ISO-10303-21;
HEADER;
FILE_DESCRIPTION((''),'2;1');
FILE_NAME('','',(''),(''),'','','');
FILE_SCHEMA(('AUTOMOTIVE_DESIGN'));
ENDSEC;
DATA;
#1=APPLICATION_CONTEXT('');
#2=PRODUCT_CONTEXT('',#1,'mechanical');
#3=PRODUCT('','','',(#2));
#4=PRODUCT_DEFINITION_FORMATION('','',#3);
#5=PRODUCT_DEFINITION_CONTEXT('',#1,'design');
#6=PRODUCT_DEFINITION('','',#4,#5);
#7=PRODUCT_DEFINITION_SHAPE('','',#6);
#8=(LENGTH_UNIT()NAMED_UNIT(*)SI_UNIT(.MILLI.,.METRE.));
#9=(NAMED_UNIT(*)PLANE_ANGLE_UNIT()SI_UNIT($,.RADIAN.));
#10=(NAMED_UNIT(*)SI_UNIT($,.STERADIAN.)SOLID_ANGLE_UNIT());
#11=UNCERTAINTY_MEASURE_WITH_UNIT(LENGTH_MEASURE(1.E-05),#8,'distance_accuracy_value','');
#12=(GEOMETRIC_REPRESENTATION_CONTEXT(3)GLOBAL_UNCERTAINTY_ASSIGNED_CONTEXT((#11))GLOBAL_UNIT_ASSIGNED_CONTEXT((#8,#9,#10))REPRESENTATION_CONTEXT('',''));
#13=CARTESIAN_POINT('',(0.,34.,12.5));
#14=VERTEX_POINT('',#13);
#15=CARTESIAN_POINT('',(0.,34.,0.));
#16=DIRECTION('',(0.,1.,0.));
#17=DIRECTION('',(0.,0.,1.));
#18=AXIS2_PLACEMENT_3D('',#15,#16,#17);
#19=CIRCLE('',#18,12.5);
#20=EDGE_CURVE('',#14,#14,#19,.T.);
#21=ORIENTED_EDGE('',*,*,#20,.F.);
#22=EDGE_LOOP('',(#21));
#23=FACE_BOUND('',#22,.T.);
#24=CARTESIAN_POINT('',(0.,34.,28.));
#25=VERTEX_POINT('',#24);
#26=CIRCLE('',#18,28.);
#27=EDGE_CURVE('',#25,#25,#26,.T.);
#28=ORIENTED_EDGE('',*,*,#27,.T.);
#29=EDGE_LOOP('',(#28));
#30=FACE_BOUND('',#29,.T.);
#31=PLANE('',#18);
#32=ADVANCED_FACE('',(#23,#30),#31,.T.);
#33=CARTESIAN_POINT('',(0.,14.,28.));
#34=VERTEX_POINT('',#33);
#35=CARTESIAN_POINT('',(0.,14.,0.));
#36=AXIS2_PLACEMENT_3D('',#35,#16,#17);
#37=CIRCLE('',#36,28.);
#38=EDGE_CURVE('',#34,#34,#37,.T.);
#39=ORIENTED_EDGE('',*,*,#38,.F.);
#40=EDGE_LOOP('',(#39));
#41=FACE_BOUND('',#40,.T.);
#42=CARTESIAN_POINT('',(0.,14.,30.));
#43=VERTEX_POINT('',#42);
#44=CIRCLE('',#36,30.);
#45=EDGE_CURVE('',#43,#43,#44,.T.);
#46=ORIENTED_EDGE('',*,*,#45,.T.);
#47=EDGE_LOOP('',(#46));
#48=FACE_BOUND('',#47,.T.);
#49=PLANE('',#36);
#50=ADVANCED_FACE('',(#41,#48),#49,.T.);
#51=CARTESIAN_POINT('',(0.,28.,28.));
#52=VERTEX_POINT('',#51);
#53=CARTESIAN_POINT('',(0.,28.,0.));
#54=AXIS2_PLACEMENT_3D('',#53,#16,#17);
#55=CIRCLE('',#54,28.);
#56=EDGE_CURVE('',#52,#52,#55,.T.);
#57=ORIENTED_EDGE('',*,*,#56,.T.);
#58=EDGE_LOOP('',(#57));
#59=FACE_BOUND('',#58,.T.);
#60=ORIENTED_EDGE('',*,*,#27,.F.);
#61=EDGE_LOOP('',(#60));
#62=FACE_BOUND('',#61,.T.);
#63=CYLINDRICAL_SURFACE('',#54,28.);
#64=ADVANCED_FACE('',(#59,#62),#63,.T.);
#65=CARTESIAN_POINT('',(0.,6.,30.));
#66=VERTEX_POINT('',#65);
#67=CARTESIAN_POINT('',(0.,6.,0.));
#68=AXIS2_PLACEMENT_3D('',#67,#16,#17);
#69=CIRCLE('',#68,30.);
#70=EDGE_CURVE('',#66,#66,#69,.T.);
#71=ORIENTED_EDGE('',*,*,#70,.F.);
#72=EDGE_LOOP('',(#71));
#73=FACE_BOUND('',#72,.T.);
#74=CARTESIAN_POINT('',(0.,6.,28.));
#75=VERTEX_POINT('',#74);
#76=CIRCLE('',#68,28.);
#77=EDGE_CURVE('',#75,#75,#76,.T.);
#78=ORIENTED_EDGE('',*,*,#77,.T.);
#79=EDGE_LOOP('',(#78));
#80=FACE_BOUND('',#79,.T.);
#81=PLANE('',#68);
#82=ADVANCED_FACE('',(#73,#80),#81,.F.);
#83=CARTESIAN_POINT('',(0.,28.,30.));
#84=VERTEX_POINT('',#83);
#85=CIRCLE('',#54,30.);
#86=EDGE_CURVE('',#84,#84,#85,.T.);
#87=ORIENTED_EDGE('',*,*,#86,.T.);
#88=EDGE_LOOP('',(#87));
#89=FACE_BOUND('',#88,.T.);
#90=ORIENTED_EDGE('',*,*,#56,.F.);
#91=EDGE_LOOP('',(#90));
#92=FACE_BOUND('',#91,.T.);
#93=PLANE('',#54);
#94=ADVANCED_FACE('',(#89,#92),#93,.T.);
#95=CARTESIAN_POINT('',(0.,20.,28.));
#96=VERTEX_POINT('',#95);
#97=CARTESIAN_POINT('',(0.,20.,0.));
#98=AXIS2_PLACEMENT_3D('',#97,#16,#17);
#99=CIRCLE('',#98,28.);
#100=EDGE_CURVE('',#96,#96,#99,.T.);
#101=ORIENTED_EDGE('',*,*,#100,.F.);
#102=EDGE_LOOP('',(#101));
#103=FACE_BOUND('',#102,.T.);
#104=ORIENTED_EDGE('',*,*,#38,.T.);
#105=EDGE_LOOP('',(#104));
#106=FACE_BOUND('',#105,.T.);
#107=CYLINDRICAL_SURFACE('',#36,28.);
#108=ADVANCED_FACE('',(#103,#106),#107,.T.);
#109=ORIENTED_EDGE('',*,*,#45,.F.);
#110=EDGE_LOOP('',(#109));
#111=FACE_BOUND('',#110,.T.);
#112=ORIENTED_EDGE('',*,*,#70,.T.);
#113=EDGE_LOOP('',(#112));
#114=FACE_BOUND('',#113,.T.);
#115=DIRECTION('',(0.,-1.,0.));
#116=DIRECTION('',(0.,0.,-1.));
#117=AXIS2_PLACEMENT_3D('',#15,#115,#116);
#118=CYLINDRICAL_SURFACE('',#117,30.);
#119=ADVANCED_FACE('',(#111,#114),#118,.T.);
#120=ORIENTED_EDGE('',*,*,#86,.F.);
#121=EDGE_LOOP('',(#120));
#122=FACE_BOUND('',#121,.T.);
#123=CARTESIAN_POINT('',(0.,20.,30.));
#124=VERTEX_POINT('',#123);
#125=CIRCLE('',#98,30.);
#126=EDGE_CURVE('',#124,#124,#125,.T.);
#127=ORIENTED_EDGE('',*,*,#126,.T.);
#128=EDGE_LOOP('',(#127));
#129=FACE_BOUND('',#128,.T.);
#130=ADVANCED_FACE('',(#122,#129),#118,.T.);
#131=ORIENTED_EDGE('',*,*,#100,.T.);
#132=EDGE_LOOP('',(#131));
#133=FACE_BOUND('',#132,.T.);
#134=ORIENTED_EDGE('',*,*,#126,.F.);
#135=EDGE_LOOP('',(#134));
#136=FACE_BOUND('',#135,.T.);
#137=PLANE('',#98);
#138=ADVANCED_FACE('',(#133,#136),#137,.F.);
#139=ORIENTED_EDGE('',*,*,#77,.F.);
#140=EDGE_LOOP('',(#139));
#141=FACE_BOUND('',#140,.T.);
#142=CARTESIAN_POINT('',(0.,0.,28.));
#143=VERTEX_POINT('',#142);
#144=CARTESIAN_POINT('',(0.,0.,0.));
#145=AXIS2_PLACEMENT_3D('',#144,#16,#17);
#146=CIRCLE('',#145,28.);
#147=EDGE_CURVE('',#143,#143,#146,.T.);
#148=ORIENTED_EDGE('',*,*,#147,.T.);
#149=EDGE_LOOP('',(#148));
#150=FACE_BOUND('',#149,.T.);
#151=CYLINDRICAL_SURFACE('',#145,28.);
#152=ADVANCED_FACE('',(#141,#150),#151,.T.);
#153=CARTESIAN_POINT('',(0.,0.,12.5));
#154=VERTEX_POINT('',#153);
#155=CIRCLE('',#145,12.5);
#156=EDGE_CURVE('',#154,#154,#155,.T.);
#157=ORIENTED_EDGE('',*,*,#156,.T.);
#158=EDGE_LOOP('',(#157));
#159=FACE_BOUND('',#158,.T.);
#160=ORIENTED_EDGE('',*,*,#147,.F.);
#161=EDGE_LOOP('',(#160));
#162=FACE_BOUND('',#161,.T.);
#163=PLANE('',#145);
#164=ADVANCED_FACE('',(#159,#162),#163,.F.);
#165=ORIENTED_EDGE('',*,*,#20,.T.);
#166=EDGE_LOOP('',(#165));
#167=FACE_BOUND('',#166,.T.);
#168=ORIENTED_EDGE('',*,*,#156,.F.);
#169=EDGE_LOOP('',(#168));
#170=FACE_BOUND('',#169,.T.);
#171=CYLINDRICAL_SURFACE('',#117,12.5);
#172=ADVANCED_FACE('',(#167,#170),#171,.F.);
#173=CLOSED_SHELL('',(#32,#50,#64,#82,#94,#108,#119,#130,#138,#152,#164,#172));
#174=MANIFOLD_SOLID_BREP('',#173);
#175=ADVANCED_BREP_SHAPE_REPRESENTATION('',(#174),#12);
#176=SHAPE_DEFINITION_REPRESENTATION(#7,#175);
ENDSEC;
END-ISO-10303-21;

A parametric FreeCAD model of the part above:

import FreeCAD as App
import Part
import Sketcher

V = App.Vector

doc = App.newDocument("Part")
body = doc.addObject("PartDesign::Body", "Body")

sketch1 = body.newObject("Sketcher::SketchObject", "Sketch")
sketch1.AttachmentSupport = (doc.getObject("XZ_Plane"), [""])
sketch1.MapMode = "FlatFace"
sketch1.addGeometry([
    Part.Circle(V(0, 0, 0), V(0, 0, 1), 30),
    Part.Circle(V(0, 0, 0), V(0, 0, 1), 12.5),
], False)
sketch1.addConstraint([
    Sketcher.Constraint("Coincident", 0, 3, -1, 1),
    Sketcher.Constraint("Coincident", 1, 3, -1, 1),
    Sketcher.Constraint("Diameter", 0, 60.0),
    Sketcher.Constraint("Diameter", 1, 25.0),
])
pad1 = body.newObject("PartDesign::Pad", "Pad")
pad1.Profile = sketch1
pad1.Length = 34
pad1.Reversed = True

sketch2 = body.newObject("Sketcher::SketchObject", "Sketch001")
sketch2.AttachmentSupport = (doc.getObject("XZ_Plane"), [""])
sketch2.MapMode = "FlatFace"
sketch2.AttachmentOffset = App.Placement(V(0, 0, -28), App.Rotation())
sketch2.addGeometry([
    Part.Circle(V(0, 0, 0), V(0, 0, 1), 30),
    Part.Circle(V(0, 0, 0), V(0, 0, 1), 28),
], False)
sketch2.addConstraint([
    Sketcher.Constraint("Coincident", 0, 3, -1, 1),
    Sketcher.Constraint("Coincident", 1, 3, -1, 1),
    Sketcher.Constraint("Diameter", 0, 60.0),
    Sketcher.Constraint("Diameter", 1, 56.0),
])
pocket1 = body.newObject("PartDesign::Pocket", "Pocket")
pocket1.Profile = sketch2
pocket1.Length = 6
doc.recompute()

linearpattern = body.newObject("PartDesign::LinearPattern", "LinearPattern")
linearpattern.Originals = [pocket1]
linearpattern.Direction = (doc.getObject("Y_Axis"), [""])
linearpattern.Mode = "offset"
linearpattern.Offset = 14
linearpattern.Occurrences = 3
linearpattern.Reversed = True
body.Tip = linearpattern

doc.recompute()
